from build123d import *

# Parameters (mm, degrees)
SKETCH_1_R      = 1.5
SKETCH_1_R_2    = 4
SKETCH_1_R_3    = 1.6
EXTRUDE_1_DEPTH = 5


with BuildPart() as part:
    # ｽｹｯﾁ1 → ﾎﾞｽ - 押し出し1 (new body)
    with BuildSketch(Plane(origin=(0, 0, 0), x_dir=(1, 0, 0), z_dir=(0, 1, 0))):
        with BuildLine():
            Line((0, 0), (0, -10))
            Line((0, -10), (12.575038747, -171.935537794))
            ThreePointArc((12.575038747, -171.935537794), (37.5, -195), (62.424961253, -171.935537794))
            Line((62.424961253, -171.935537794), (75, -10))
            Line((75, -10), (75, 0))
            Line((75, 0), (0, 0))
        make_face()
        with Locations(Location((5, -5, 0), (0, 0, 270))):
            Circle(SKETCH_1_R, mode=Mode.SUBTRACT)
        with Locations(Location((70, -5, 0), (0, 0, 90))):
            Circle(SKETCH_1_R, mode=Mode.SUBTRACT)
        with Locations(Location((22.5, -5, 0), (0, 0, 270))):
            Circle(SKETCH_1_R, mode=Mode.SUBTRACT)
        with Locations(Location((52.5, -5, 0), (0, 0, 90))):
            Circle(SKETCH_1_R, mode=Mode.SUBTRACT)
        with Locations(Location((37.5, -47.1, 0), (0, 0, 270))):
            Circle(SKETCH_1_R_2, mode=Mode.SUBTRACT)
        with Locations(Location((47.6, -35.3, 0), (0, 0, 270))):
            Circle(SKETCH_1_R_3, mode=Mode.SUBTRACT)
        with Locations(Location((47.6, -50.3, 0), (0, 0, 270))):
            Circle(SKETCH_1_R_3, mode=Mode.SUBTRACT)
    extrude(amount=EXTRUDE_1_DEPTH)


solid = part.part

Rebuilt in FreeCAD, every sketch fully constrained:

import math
import FreeCAD as App
import Part
import Sketcher

doc = App.newDocument("Part")
body = doc.addObject("PartDesign::Body", "Body")

sketch1 = doc.addObject("Sketcher::SketchObject", "Sketch")
body.addObject(sketch1)
sketch1.AttachmentSupport = (doc.XZ_Plane, [""])
sketch1.MapMode = "FlatFace"
sketch1.addGeometry([
    Part.LineSegment(App.Vector(0, 0, 0), App.Vector(0, 10, 0)),
    Part.LineSegment(App.Vector(0, 10, 0), App.Vector(12.6, 171.9, 0)),
    Part.ArcOfCircle(Part.Circle(App.Vector(37.5, 170, 0), App.Vector(0, 0, 1), 25), math.radians(4), math.radians(176)),
    Part.LineSegment(App.Vector(62.4, 171.9, 0), App.Vector(75, 10, 0)),
    Part.LineSegment(App.Vector(75, 10, 0), App.Vector(75, 0, 0)),
    Part.LineSegment(App.Vector(75, 0, 0), App.Vector(0, 0, 0)),
    Part.Circle(App.Vector(37.5, 47.1, 0), App.Vector(0, 0, 1), 4),
    Part.Circle(App.Vector(47.6, 50.3, 0), App.Vector(0, 0, 1), 1.6),
    Part.Circle(App.Vector(47.6, 35.3, 0), App.Vector(0, 0, 1), 1.6),
    Part.Circle(App.Vector(5, 5, 0), App.Vector(0, 0, 1), 1.5),
    Part.Circle(App.Vector(22.5, 5, 0), App.Vector(0, 0, 1), 1.5),
    Part.Circle(App.Vector(52.5, 5, 0), App.Vector(0, 0, 1), 1.5),
    Part.Circle(App.Vector(70, 5, 0), App.Vector(0, 0, 1), 1.5),
], False)
sketch1.addConstraint([
    Sketcher.Constraint("Coincident", 0, 2, 1, 1),
    Sketcher.Constraint("Tangent", 1, 2, 2, 2),
    Sketcher.Constraint("Tangent", 2, 1, 3, 1),
    Sketcher.Constraint("Coincident", 3, 2, 4, 1),
    Sketcher.Constraint("Coincident", 4, 2, 5, 1),
    Sketcher.Constraint("Coincident", 5, 2, 0, 1),
    Sketcher.Constraint("Vertical", 0),
    Sketcher.Constraint("Vertical", 4),
    Sketcher.Constraint("Horizontal", 5),
    Sketcher.Constraint("Coincident", 5, 2, -1, 1),
    Sketcher.Constraint("Equal", 7, 8),
    Sketcher.Constraint("Equal", 9, 10),
    Sketcher.Constraint("Equal", 10, 11),
    Sketcher.Constraint("Equal", 11, 12),
    Sketcher.Constraint("Horizontal", 9, 3, 10, 3),
    Sketcher.Constraint("Horizontal", 10, 3, 11, 3),
    Sketcher.Constraint("Horizontal", 11, 3, 12, 3),
    Sketcher.Constraint("Horizontal", 1, 2, 2, 1),
    Sketcher.Constraint("Horizontal", 0, 2, 3, 2),
    Sketcher.Constraint("Vertical", 2, 3, 6, 3),
    Sketcher.Constraint("Vertical", 7, 3, 8, 3),
    Sketcher.Constraint("Diameter", 6, 8.0),
    Sketcher.Constraint("Diameter", 9, 3.0),
    Sketcher.Constraint("Radius", 2, 25.0),
    Sketcher.Constraint("Diameter", 7, 3.2),
    Sketcher.Constraint("DistanceX", 5, 2, 5, 1, 75.0),
    Sketcher.Constraint("DistanceY", 0, 1, 0, 2, 10.0),
    Sketcher.Constraint("DistanceY", -1, 1, 2, 3, 170.0),
    Sketcher.Constraint("DistanceX", -1, 1, 9, 3, 5.0),
    Sketcher.Constraint("DistanceY", -1, 1, 9, 3, 5.0),
    Sketcher.Constraint("DistanceX", -1, 1, 12, 3, 70.0),
    Sketcher.Constraint("DistanceY", 8, 3, 7, 3, 15.0),
    Sketcher.Constraint("DistanceX", 10, 3, 6, 3, 15.0),
    Sketcher.Constraint("DistanceX", 10, 3, 11, 3, 30.0),
    Sketcher.Constraint("DistanceY", -1, 1, 6, 3, 47.1),
    Sketcher.Constraint("DistanceX", -1, 1, 7, 3, 47.6),
    Sketcher.Constraint("DistanceY", -1, 1, 7, 3, 50.3),
])
pad1 = doc.addObject("PartDesign::Pad", "Pad")
body.addObject(pad1)
pad1.Profile = sketch1
pad1.Length = 5
pad1.Reversed = True

doc.recompute()
